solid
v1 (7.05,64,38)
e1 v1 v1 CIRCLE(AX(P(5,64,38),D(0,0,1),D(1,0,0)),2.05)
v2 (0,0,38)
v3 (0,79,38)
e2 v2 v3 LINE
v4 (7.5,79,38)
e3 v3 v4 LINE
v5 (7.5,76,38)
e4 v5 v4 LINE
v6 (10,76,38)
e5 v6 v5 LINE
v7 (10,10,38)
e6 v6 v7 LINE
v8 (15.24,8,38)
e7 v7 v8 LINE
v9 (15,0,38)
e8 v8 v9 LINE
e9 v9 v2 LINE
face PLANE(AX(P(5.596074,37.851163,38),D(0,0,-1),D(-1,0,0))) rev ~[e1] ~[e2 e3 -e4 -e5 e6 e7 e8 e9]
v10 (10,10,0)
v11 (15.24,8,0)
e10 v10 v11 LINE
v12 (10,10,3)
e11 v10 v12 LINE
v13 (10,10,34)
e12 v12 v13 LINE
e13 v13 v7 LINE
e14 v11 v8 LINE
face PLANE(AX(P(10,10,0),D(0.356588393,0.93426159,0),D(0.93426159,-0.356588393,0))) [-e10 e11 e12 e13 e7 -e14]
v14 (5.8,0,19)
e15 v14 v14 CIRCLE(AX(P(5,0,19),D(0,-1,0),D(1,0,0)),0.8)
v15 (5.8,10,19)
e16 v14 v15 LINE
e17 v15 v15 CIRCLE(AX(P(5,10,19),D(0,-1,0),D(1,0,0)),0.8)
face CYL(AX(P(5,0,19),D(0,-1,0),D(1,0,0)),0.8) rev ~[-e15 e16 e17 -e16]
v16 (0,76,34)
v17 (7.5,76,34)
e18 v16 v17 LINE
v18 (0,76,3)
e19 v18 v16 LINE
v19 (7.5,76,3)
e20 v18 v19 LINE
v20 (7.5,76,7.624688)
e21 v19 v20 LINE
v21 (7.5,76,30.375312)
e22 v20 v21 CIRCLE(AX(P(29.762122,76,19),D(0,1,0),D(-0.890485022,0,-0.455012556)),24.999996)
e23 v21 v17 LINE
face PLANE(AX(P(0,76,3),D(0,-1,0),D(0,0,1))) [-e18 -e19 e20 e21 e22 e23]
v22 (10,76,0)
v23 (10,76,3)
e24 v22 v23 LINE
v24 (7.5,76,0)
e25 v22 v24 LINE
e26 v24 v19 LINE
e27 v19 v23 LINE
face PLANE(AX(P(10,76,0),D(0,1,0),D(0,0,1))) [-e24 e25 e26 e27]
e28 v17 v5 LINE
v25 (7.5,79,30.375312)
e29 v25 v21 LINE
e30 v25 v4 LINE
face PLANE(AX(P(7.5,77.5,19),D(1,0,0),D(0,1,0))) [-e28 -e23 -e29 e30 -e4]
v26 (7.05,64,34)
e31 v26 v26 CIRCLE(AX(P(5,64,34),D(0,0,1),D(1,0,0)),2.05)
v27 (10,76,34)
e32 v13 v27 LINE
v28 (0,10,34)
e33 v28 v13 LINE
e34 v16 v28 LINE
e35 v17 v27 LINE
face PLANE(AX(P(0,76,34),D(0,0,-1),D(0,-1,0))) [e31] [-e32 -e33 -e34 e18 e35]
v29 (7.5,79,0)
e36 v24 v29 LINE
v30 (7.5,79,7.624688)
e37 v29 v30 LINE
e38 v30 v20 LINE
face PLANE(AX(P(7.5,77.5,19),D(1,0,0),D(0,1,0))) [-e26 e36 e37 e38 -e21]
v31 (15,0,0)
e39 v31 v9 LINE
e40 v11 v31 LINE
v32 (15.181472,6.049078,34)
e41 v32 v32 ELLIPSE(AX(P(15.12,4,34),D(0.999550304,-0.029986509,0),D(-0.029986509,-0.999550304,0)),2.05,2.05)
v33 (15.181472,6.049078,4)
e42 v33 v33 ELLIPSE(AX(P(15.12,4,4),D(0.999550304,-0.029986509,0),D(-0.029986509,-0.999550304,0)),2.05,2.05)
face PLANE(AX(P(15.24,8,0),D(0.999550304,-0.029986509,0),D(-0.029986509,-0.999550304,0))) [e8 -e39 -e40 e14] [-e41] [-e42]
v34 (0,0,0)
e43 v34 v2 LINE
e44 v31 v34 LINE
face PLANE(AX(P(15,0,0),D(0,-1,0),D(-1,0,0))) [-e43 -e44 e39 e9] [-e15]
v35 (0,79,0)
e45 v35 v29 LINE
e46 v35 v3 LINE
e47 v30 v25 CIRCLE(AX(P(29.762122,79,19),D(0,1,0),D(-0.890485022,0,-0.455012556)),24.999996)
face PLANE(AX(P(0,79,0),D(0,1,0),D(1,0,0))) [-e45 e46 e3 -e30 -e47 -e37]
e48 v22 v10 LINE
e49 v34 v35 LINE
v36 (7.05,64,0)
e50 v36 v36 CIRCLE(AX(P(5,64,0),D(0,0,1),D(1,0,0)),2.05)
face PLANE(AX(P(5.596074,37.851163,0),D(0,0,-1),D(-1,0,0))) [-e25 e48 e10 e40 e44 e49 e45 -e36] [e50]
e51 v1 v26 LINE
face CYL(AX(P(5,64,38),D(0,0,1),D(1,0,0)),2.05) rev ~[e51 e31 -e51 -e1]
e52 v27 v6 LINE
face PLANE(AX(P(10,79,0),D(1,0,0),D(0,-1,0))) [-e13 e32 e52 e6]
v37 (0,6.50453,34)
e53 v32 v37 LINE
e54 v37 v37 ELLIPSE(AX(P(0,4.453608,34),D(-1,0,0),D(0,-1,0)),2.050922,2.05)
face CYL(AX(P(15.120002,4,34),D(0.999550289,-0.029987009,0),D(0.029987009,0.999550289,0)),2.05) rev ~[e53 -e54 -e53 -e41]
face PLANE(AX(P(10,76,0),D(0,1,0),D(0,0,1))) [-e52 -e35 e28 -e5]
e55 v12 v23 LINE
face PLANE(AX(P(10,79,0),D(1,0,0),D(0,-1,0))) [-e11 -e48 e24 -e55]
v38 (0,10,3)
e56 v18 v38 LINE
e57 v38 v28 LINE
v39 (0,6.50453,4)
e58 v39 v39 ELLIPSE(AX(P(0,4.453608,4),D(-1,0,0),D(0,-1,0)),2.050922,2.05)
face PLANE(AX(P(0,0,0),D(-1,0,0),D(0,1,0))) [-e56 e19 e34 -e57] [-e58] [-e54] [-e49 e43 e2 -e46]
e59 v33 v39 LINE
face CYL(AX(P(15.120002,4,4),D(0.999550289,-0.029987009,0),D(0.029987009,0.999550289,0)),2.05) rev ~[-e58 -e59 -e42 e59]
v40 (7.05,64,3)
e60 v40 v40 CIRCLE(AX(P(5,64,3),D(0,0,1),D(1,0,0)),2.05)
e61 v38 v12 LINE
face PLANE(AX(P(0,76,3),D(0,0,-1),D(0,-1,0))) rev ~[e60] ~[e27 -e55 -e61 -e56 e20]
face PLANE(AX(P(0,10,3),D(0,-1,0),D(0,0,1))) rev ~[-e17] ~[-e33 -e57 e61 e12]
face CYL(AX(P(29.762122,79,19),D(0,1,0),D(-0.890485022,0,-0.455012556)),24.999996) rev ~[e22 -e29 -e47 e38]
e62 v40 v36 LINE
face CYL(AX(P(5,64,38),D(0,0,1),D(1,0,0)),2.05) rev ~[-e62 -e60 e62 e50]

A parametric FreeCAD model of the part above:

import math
import FreeCAD as App
import Part
import Sketcher
from FreeCAD import Vector
Q = App.Units.Quantity

doc = App.newDocument("Part")
body = doc.addObject("PartDesign::Body", "Body")

# Sketch on XY plane
sketch1 = body.newObject("Sketcher::SketchObject", "Sketch")
sketch1.AttachmentSupport = (doc.getObject("XY_Plane"), [""])
sketch1.MapMode = "FlatFace"
sketch1.addGeometry([
    Part.LineSegment(Vector(0, 0, 0), Vector(15, 0, 0)),  # 0
    Part.LineSegment(Vector(15, 0, 0), Vector(15, 8, 0)),  # 1
    Part.LineSegment(Vector(15, 8, 0), Vector(10, 10, 0)),  # 2
    Part.LineSegment(Vector(10, 10, 0), Vector(10, 79, 0)),  # 3
    Part.LineSegment(Vector(10, 79, 0), Vector(0, 79, 0)),  # 4
    Part.LineSegment(Vector(0, 79, 0), Vector(0, 0, 0)),  # 5
], False)
sketch1.addConstraint([
    Sketcher.Constraint("Coincident", 0, 2, 1, 1),
    Sketcher.Constraint("Coincident", 1, 2, 2, 1),
    Sketcher.Constraint("Coincident", 2, 2, 3, 1),
    Sketcher.Constraint("Coincident", 3, 2, 4, 1),
    Sketcher.Constraint("Coincident", 4, 2, 5, 1),
    Sketcher.Constraint("Coincident", 5, 2, 0, 1),
    Sketcher.Constraint("Horizontal", 0),
    Sketcher.Constraint("Vertical", 3),
    Sketcher.Constraint("Horizontal", 4),
    Sketcher.Constraint("Vertical", 5),
    Sketcher.Constraint("Coincident", 5, 2, -1, 1),
    Sketcher.Constraint("DistanceX", 0, 1, 0, 2, Q("15 mm")),
    Sketcher.Constraint("DistanceX", 4, 2, 4, 1, Q("10 mm")),
    Sketcher.Constraint("DistanceY", 3, 1, 3, 2, Q("69 mm")),
    Sketcher.Constraint("DistanceY", 5, 2, 5, 1, Q("79 mm")),
    Sketcher.Constraint("DistanceY", -1, 1, 1, 2, Q("8 mm")),
    Sketcher.Constraint("DistanceX", -1, 1, 1, 2, Q("15.24 mm")),
])
pad1 = body.newObject("PartDesign::Pad", "Pad")
pad1.Profile = sketch1
pad1.Length = 38

# Sketch on an angled plane
sketch2 = body.newObject("Sketcher::SketchObject", "Sketch001")
sketch2.Placement = App.Placement(Vector(14.986512, -0.449595, 0), App.Rotation(Vector(0.029987009, 0.999550289, 0), Vector(0, 0, 1.000000001), Vector(0.999550289, -0.029987009, 0), "ZXY"))
sketch2.addGeometry([
    Part.Circle(Vector(4.5, 34, 0), Vector(0, 0, 1), 2),
    Part.Circle(Vector(4.5, 4, 0), Vector(0, 0, 1), 2),
], False)
sketch2.addConstraint([
    Sketcher.Constraint("Equal", 0, 1),
    Sketcher.Constraint("Vertical", 0, 3, 1, 3),
    Sketcher.Constraint("Diameter", 0, Q("4.1 mm")),
    Sketcher.Constraint("DistanceY", -1, 1, 0, 3, Q("34 mm")),
    Sketcher.Constraint("DistanceY", -1, 1, 1, 3, Q("4 mm")),
    Sketcher.Constraint("DistanceX", -1, 1, 0, 3, Q("4.451597 mm")),
])
pocket1 = body.newObject("PartDesign::Pocket", "Pocket")
pocket1.Profile = sketch2
pocket1.Type = "ThroughAll"

# Sketch on YZ plane
sketch3 = body.newObject("Sketcher::SketchObject", "Sketch002")
sketch3.AttachmentSupport = (doc.getObject("YZ_Plane"), [""])
sketch3.MapMode = "FlatFace"
sketch3.addGeometry([
    Part.LineSegment(Vector(76, 34, 0), Vector(76, 3, 0)),
    Part.LineSegment(Vector(76, 3, 0), Vector(10, 3, 0)),
    Part.LineSegment(Vector(10, 3, 0), Vector(10, 34, 0)),
    Part.LineSegment(Vector(10, 34, 0), Vector(76, 34, 0)),
], False)
sketch3.addConstraint([
    Sketcher.Constraint("Coincident", 0, 2, 1, 1),
    Sketcher.Constraint("Coincident", 1, 2, 2, 1),
    Sketcher.Constraint("Coincident", 2, 2, 3, 1),
    Sketcher.Constraint("Coincident", 3, 2, 0, 1),
    Sketcher.Constraint("Vertical", 0),
    Sketcher.Constraint("Horizontal", 1),
    Sketcher.Constraint("Vertical", 2),
    Sketcher.Constraint("Horizontal", 3),
    Sketcher.Constraint("DistanceX", 1, 2, 1, 1, Q("66 mm")),
    Sketcher.Constraint("DistanceY", 0, 2, 0, 1, Q("31 mm")),
    Sketcher.Constraint("DistanceX", -1, 1, 0, 2, Q("76 mm")),
    Sketcher.Constraint("DistanceY", -1, 1, 0, 2, Q("3 mm")),
])
pocket2 = body.newObject("PartDesign::Pocket", "Pocket001")
pocket2.Profile = sketch3
pocket2.Type = "ThroughAll"
pocket2.Reversed = True

# Sketch on XY plane
sketch4 = body.newObject("Sketcher::SketchObject", "Sketch003")
sketch4.AttachmentSupport = (doc.getObject("XY_Plane"), [""])
sketch4.MapMode = "FlatFace"
sketch4.AttachmentOffset = App.Placement(Vector(0, 0, 38), App.Rotation())
sketch4.addGeometry(Part.Circle(Vector(5, 64, 0), Vector(0, 0, 1), 2), False)
sketch4.addConstraint([
    Sketcher.Constraint("Diameter", 0, Q("4.1 mm")),
    Sketcher.Constraint("DistanceX", -1, 1, 0, 3, Q("5 mm")),
    Sketcher.Constraint("DistanceY", -1, 1, 0, 3, Q("64 mm")),
])
pocket3 = body.newObject("PartDesign::Pocket", "Pocket002")
pocket3.Profile = sketch4
pocket3.Type = "ThroughAll"

# Sketch on YZ plane
sketch5 = body.newObject("Sketcher::SketchObject", "Sketch004")
sketch5.AttachmentSupport = (doc.getObject("YZ_Plane"), [""])
sketch5.MapMode = "FlatFace"
sketch5.AttachmentOffset = App.Placement(Vector(0, 0, 10), App.Rotation())
sketch5.addGeometry([
    Part.LineSegment(Vector(76, 38, 0), Vector(76, 0, 0)),
    Part.LineSegment(Vector(76, 0, 0), Vector(79, 0, 0)),
    Part.LineSegment(Vector(79, 0, 0), Vector(79, 38, 0)),
    Part.LineSegment(Vector(79, 38, 0), Vector(76, 38, 0)),
], False)
sketch5.addConstraint([
    Sketcher.Constraint("Coincident", 0, 2, 1, 1),
    Sketcher.Constraint("Coincident", 1, 2, 2, 1),
    Sketcher.Constraint("Coincident", 2, 2, 3, 1),
    Sketcher.Constraint("Coincident", 3, 2, 0, 1),
    Sketcher.Constraint("Vertical", 0),
    Sketcher.Constraint("Horizontal", 1),
    Sketcher.Constraint("Vertical", 2),
    Sketcher.Constraint("Horizontal", 3),
    Sketcher.Constraint("PointOnObject", 0, 2, -1),
    Sketcher.Constraint("DistanceX", 1, 1, 1, 2, Q("3 mm")),
    Sketcher.Constraint("DistanceY", 0, 2, 0, 1, Q("38 mm")),
    Sketcher.Constraint("DistanceX", -1, 1, 0, 2, Q("76 mm")),
])
pocket4 = body.newObject("PartDesign::Pocket", "Pocket003")
pocket4.Profile = sketch5
pocket4.Length = 2.5

# Sketch on XZ plane
sketch6 = body.newObject("Sketcher::SketchObject", "Sketch005")
sketch6.AttachmentSupport = (doc.getObject("XZ_Plane"), [""])
sketch6.MapMode = "FlatFace"
sketch6.AttachmentOffset = App.Placement(Vector(0, 0, -79), App.Rotation())
sketch6.addGeometry([
    Part.ArcOfCircle(Part.Circle(Vector(30, 19, 0), Vector(0, 0, 1), 25), math.radians(153), math.radians(207)),
    Part.LineSegment(Vector(8, 30, 0), Vector(8, 8, 0)),
], False)
sketch6.addConstraint([
    Sketcher.Constraint("Coincident", 0, 1, 1, 1),
    Sketcher.Constraint("Coincident", 1, 2, 0, 2),
    Sketcher.Constraint("Vertical", 1),
    Sketcher.Constraint("DistanceY", -1, 1, 0, 3, Q("19 mm")),
    Sketcher.Constraint("DistanceX", -1, 1, 0, 1, Q("7.5 mm")),
    Sketcher.Constraint("Radius", 0, Q("24.999996 mm")),
    Sketcher.Constraint("DistanceY", 1, 2, 1, 1, Q("22.750624 mm")),
])
pocket5 = body.newObject("PartDesign::Pocket", "Pocket004")
pocket5.Profile = sketch6
pocket5.Length = 5
pocket5.Reversed = True

# Sketch on XZ plane
sketch7 = body.newObject("Sketcher::SketchObject", "Sketch006")
sketch7.AttachmentSupport = (doc.getObject("XZ_Plane"), [""])
sketch7.MapMode = "FlatFace"
sketch7.addGeometry(Part.Circle(Vector(5, 19, 0), Vector(0, 0, 1), 0.8), False)
sketch7.addConstraint([
    Sketcher.Constraint("Diameter", 0, Q("1.6 mm")),
    Sketcher.Constraint("DistanceX", -1, 1, 0, 3, Q("5 mm")),
    Sketcher.Constraint("DistanceY", -1, 1, 0, 3, Q("19 mm")),
])
pocket6 = body.newObject("PartDesign::Pocket", "Pocket005")
pocket6.Profile = sketch7
pocket6.Length = 15

doc.recompute()
